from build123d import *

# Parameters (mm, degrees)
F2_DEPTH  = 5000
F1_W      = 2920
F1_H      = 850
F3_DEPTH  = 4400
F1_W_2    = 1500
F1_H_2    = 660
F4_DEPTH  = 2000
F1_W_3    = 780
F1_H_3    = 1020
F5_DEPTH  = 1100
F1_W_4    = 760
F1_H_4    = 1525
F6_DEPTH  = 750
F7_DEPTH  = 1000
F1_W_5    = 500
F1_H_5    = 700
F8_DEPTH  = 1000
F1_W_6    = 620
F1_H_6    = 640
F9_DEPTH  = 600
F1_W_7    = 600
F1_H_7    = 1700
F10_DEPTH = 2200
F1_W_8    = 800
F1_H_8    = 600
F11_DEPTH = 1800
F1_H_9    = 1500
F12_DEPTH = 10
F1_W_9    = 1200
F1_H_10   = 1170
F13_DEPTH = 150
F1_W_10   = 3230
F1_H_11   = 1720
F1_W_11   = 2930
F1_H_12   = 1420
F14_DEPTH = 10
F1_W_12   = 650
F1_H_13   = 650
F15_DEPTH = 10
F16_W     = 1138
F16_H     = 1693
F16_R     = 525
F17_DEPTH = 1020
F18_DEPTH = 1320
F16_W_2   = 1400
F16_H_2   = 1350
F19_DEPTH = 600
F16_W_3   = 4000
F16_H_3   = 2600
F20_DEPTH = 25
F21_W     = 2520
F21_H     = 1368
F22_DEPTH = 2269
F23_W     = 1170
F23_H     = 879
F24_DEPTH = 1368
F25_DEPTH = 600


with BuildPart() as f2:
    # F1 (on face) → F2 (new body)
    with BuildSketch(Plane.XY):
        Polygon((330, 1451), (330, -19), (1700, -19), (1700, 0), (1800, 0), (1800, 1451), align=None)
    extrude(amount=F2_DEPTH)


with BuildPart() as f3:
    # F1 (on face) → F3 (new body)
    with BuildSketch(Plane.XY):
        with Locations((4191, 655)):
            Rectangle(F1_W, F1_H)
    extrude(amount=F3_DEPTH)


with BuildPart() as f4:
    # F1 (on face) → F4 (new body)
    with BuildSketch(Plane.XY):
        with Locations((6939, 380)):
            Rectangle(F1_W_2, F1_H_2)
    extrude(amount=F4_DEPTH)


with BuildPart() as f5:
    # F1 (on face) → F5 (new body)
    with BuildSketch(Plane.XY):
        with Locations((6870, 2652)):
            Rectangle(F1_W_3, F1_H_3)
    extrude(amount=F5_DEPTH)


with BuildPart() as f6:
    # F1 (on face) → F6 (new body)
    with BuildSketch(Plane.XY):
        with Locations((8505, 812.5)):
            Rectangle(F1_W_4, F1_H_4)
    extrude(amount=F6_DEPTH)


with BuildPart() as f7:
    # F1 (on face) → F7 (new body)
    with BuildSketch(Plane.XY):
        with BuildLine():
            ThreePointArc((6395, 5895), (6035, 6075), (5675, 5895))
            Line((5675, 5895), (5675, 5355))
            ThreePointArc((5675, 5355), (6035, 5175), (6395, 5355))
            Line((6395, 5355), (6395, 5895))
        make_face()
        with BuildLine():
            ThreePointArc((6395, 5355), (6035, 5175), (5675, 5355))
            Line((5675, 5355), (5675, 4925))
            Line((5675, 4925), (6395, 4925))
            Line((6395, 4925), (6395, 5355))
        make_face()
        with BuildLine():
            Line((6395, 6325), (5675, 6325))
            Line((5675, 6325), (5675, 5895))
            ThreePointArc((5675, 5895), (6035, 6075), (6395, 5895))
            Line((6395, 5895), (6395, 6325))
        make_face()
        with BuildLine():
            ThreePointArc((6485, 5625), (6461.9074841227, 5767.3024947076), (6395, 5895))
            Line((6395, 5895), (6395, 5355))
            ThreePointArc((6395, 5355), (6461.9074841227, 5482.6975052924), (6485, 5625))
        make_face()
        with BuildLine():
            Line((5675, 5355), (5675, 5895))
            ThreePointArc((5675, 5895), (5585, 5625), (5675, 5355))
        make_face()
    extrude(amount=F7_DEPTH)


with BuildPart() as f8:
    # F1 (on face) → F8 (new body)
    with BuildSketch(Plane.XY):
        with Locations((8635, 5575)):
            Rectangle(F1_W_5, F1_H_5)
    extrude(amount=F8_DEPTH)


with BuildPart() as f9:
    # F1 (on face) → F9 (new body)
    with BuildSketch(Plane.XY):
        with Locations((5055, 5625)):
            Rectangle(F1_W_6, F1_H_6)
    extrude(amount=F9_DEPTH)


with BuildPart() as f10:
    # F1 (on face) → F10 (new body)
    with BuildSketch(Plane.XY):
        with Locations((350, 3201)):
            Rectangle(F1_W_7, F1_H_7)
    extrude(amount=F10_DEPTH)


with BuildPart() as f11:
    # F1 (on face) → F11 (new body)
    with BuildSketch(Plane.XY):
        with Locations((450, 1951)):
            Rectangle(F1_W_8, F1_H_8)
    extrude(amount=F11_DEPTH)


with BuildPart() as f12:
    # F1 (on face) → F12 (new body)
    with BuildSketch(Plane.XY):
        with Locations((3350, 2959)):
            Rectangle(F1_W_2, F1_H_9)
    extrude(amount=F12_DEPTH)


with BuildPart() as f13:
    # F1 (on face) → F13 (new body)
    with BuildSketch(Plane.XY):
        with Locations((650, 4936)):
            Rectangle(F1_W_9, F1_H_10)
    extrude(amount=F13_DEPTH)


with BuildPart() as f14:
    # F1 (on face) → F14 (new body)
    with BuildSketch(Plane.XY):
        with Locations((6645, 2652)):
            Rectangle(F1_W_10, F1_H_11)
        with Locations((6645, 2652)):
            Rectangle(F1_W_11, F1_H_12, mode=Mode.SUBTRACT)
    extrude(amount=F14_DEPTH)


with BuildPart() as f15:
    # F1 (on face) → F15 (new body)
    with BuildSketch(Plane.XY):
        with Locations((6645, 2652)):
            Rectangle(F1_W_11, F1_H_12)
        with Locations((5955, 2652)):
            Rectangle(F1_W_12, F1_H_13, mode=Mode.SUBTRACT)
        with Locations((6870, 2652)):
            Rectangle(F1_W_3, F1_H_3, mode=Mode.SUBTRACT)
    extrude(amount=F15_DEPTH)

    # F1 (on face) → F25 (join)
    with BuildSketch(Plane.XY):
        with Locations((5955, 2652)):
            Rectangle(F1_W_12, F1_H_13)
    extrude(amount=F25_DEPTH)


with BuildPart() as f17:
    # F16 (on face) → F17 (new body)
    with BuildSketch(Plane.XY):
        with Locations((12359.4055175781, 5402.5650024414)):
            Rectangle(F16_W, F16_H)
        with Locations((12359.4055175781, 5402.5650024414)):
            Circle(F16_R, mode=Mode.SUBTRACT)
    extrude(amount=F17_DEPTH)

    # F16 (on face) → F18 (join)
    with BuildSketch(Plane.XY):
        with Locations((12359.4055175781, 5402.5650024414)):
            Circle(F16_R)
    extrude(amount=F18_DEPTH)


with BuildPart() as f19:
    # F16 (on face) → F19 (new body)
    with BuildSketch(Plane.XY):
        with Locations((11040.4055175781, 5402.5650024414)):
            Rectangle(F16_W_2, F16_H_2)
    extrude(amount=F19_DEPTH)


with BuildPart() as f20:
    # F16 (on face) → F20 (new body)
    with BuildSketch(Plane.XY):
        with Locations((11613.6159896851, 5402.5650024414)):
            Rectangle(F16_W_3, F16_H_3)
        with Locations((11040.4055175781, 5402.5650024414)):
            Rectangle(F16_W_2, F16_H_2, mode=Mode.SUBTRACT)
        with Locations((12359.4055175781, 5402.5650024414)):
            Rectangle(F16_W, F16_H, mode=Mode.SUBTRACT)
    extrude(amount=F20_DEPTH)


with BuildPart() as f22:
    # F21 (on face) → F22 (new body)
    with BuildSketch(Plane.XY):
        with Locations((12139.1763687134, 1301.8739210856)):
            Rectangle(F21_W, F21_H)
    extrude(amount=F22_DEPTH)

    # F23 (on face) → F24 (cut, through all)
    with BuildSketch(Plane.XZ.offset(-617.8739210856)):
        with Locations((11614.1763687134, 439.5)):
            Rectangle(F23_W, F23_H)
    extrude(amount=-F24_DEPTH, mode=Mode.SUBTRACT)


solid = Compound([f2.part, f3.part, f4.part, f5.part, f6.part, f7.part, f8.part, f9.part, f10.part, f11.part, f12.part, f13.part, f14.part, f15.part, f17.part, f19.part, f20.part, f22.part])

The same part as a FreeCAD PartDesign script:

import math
import FreeCAD as App
import Part
import Sketcher

doc = App.newDocument("Part")
body = doc.addObject("PartDesign::Body", "Body")

# Sketch on XY plane
sketch1 = body.newObject("Sketcher::SketchObject", "Sketch")
sketch1.AttachmentSupport = (doc.getObject("XY_Plane"), [""])
sketch1.MapMode = "FlatFace"
sketch1.addGeometry([
    Part.LineSegment(App.Vector(330, 1451, 0), App.Vector(330, -19, 0)),  # 0
    Part.LineSegment(App.Vector(330, -19, 0), App.Vector(1700, -19, 0)),  # 1
    Part.LineSegment(App.Vector(1700, -19, 0), App.Vector(1700, 0, 0)),  # 2
    Part.LineSegment(App.Vector(1700, 0, 0), App.Vector(1800, 0, 0)),  # 3
    Part.LineSegment(App.Vector(1800, 0, 0), App.Vector(1800, 1451, 0)),  # 4
    Part.LineSegment(App.Vector(1800, 1451, 0), App.Vector(330, 1451, 0)),  # 5
], False)
sketch1.addConstraint([
    Sketcher.Constraint("Coincident", 0, 2, 1, 1),
    Sketcher.Constraint("Coincident", 1, 2, 2, 1),
    Sketcher.Constraint("Coincident", 2, 2, 3, 1),
    Sketcher.Constraint("Coincident", 3, 2, 4, 1),
    Sketcher.Constraint("Coincident", 4, 2, 5, 1),
    Sketcher.Constraint("Coincident", 5, 2, 0, 1),
    Sketcher.Constraint("Vertical", 0),
    Sketcher.Constraint("Horizontal", 1),
    Sketcher.Constraint("Vertical", 2),
    Sketcher.Constraint("Horizontal", 3),
    Sketcher.Constraint("Vertical", 4),
    Sketcher.Constraint("Horizontal", 5),
    Sketcher.Constraint("PointOnObject", 2, 2, -1),
    Sketcher.Constraint("Equal", 5, 0),
    Sketcher.Constraint("DistanceX", 1, 1, 1, 2, 1370.0),
    Sketcher.Constraint("DistanceX", 3, 1, 3, 2, 100.0),
    Sketcher.Constraint("DistanceY", 2, 1, 2, 2, 19.0),
    Sketcher.Constraint("DistanceX", -1, 1, 0, 2, 330.0),
])
pad1 = body.newObject("PartDesign::Pad", "Pad")
pad1.Profile = sketch1
pad1.Length = 5000
body2 = doc.addObject("PartDesign::Body", "Body001")

# Sketch on XY plane
sketch2 = body2.newObject("Sketcher::SketchObject", "Sketch001")
sketch2.AttachmentSupport = (doc.getObject("XY_Plane001"), [""])
sketch2.MapMode = "FlatFace"
sketch2.addGeometry([
    Part.LineSegment(App.Vector(2731, 1080, 0), App.Vector(2731, 230, 0)),
    Part.LineSegment(App.Vector(2731, 230, 0), App.Vector(5651, 230, 0)),
    Part.LineSegment(App.Vector(5651, 230, 0), App.Vector(5651, 1080, 0)),
    Part.LineSegment(App.Vector(5651, 1080, 0), App.Vector(2731, 1080, 0)),
], False)
sketch2.addConstraint([
    Sketcher.Constraint("Coincident", 0, 2, 1, 1),
    Sketcher.Constraint("Coincident", 1, 2, 2, 1),
    Sketcher.Constraint("Coincident", 2, 2, 3, 1),
    Sketcher.Constraint("Coincident", 3, 2, 0, 1),
    Sketcher.Constraint("Vertical", 0),
    Sketcher.Constraint("Horizontal", 1),
    Sketcher.Constraint("Vertical", 2),
    Sketcher.Constraint("Horizontal", 3),
    Sketcher.Constraint("DistanceX", 1, 1, 1, 2, 2920.0),
    Sketcher.Constraint("DistanceY", 0, 2, 0, 1, 850.0),
    Sketcher.Constraint("DistanceX", -1, 1, 0, 2, 2731.0),
    Sketcher.Constraint("DistanceY", -1, 1, 0, 2, 230.0),
])
pad2 = body2.newObject("PartDesign::Pad", "Pad001")
pad2.Profile = sketch2
pad2.Length = 4400
body3 = doc.addObject("PartDesign::Body", "Body002")

# Sketch on XY plane
sketch3 = body3.newObject("Sketcher::SketchObject", "Sketch002")
sketch3.AttachmentSupport = (doc.getObject("XY_Plane002"), [""])
sketch3.MapMode = "FlatFace"
sketch3.addGeometry([
    Part.LineSegment(App.Vector(6189, 710, 0), App.Vector(6189, 50, 0)),
    Part.LineSegment(App.Vector(6189, 50, 0), App.Vector(7689, 50, 0)),
    Part.LineSegment(App.Vector(7689, 50, 0), App.Vector(7689, 710, 0)),
    Part.LineSegment(App.Vector(7689, 710, 0), App.Vector(6189, 710, 0)),
], False)
sketch3.addConstraint([
    Sketcher.Constraint("Coincident", 0, 2, 1, 1),
    Sketcher.Constraint("Coincident", 1, 2, 2, 1),
    Sketcher.Constraint("Coincident", 2, 2, 3, 1),
    Sketcher.Constraint("Coincident", 3, 2, 0, 1),
    Sketcher.Constraint("Vertical", 0),
    Sketcher.Constraint("Horizontal", 1),
    Sketcher.Constraint("Vertical", 2),
    Sketcher.Constraint("Horizontal", 3),
    Sketcher.Constraint("DistanceX", 1, 1, 1, 2, 1500.0),
    Sketcher.Constraint("DistanceY", 0, 2, 0, 1, 660.0),
    Sketcher.Constraint("DistanceX", -1, 1, 0, 2, 6189.0),
    Sketcher.Constraint("DistanceY", -1, 1, 0, 2, 50.0),
])
pad3 = body3.newObject("PartDesign::Pad", "Pad002")
pad3.Profile = sketch3
pad3.Length = 2000
body4 = doc.addObject("PartDesign::Body", "Body003")

# Sketch on XY plane
sketch4 = body4.newObject("Sketcher::SketchObject", "Sketch003")
sketch4.AttachmentSupport = (doc.getObject("XY_Plane003"), [""])
sketch4.MapMode = "FlatFace"
sketch4.addGeometry([
    Part.LineSegment(App.Vector(6480, 3162, 0), App.Vector(6480, 2142, 0)),
    Part.LineSegment(App.Vector(6480, 2142, 0), App.Vector(7260, 2142, 0)),
    Part.LineSegment(App.Vector(7260, 2142, 0), App.Vector(7260, 3162, 0)),
    Part.LineSegment(App.Vector(7260, 3162, 0), App.Vector(6480, 3162, 0)),
], False)
sketch4.addConstraint([
    Sketcher.Constraint("Coincident", 0, 2, 1, 1),
    Sketcher.Constraint("Coincident", 1, 2, 2, 1),
    Sketcher.Constraint("Coincident", 2, 2, 3, 1),
    Sketcher.Constraint("Coincident", 3, 2, 0, 1),
    Sketcher.Constraint("Vertical", 0),
    Sketcher.Constraint("Horizontal", 1),
    Sketcher.Constraint("Vertical", 2),
    Sketcher.Constraint("Horizontal", 3),
    Sketcher.Constraint("DistanceX", 1, 1, 1, 2, 780.0),
    Sketcher.Constraint("DistanceY", 0, 2, 0, 1, 1020.0),
    Sketcher.Constraint("DistanceX", -1, 1, 0, 2, 6480.0),
    Sketcher.Constraint("DistanceY", -1, 1, 0, 2, 2142.0),
])
pad4 = body4.newObject("PartDesign::Pad", "Pad003")
pad4.Profile = sketch4
pad4.Length = 1100
body5 = doc.addObject("PartDesign::Body", "Body004")

# Sketch on XY plane
sketch5 = body5.newObject("Sketcher::SketchObject", "Sketch004")
sketch5.AttachmentSupport = (doc.getObject("XY_Plane004"), [""])
sketch5.MapMode = "FlatFace"
sketch5.addGeometry([
    Part.LineSegment(App.Vector(8125, 1575, 0), App.Vector(8125, 50, 0)),
    Part.LineSegment(App.Vector(8125, 50, 0), App.Vector(8885, 50, 0)),
    Part.LineSegment(App.Vector(8885, 50, 0), App.Vector(8885, 1575, 0)),
    Part.LineSegment(App.Vector(8885, 1575, 0), App.Vector(8125, 1575, 0)),
], False)
sketch5.addConstraint([
    Sketcher.Constraint("Coincident", 0, 2, 1, 1),
    Sketcher.Constraint("Coincident", 1, 2, 2, 1),
    Sketcher.Constraint("Coincident", 2, 2, 3, 1),
    Sketcher.Constraint("Coincident", 3, 2, 0, 1),
    Sketcher.Constraint("Vertical", 0),
    Sketcher.Constraint("Horizontal", 1),
    Sketcher.Constraint("Vertical", 2),
    Sketcher.Constraint("Horizontal", 3),
    Sketcher.Constraint("DistanceX", 1, 1, 1, 2, 760.0),
    Sketcher.Constraint("DistanceY", 0, 2, 0, 1, 1525.0),
    Sketcher.Constraint("DistanceX", -1, 1, 0, 2, 8125.0),
    Sketcher.Constraint("DistanceY", -1, 1, 0, 2, 50.0),
])
pad5 = body5.newObject("PartDesign::Pad", "Pad004")
pad5.Profile = sketch5
pad5.Length = 750
body6 = doc.addObject("PartDesign::Body", "Body005")

# Sketch on XY plane
sketch6 = body6.newObject("Sketcher::SketchObject", "Sketch005")
sketch6.AttachmentSupport = (doc.getObject("XY_Plane005"), [""])
sketch6.MapMode = "FlatFace"
sketch6.addGeometry([
    Part.LineSegment(App.Vector(5675, 4925, 0), App.Vector(6395, 4925, 0)),  # 0
    Part.LineSegment(App.Vector(6395, 4925, 0), App.Vector(6395, 5355, 0)),  # 1
    Part.ArcOfCircle(Part.Circle(App.Vector(6035, 5625, 0), App.Vector(0, 0, 1), 450), math.radians(-36.869898), math.radians(36.869898)),  # 2
    Part.LineSegment(App.Vector(6395, 5895, 0), App.Vector(6395, 6325, 0)),  # 3
    Part.LineSegment(App.Vector(6395, 6325, 0), App.Vector(5675, 6325, 0)),  # 4
    Part.LineSegment(App.Vector(5675, 6325, 0), App.Vector(5675, 5895, 0)),  # 5
    Part.ArcOfCircle(Part.Circle(App.Vector(6035, 5625, 0), App.Vector(0, 0, 1), 450), math.radians(143.130102), math.radians(216.869898)),  # 6
    Part.LineSegment(App.Vector(5675, 5355, 0), App.Vector(5675, 4925, 0)),  # 7
], False)
sketch6.addConstraint([
    Sketcher.Constraint("Coincident", 0, 2, 1, 1),
    Sketcher.Constraint("Coincident", 1, 2, 2, 1),
    Sketcher.Constraint("Coincident", 2, 2, 3, 1),
    Sketcher.Constraint("Coincident", 3, 2, 4, 1),
    Sketcher.Constraint("Coincident", 4, 2, 5, 1),
    Sketcher.Constraint("Coincident", 5, 2, 6, 1),
    Sketcher.Constraint("Coincident", 6, 2, 7, 1),
    Sketcher.Constraint("Coincident", 7, 2, 0, 1),
    Sketcher.Constraint("Horizontal", 0),
    Sketcher.Constraint("Vertical", 1),
    Sketcher.Constraint("Vertical", 3),
    Sketcher.Constraint("Horizontal", 4),
    Sketcher.Constraint("Vertical", 5),
    Sketcher.Constraint("Vertical", 7),
    Sketcher.Constraint("Coincident", 6, 3, 2, 3),
    Sketcher.Constraint("Equal", 2, 6),
    Sketcher.Constraint("Horizontal", 2, 2, 5, 2),
    Sketcher.Constraint("Horizontal", 1, 2, 6, 2),
    Sketcher.Constraint("Equal", 0, 4),
    Sketcher.Constraint("Equal", 1, 3),
    Sketcher.Constraint("Radius", 2, 450.0),
    Sketcher.Constraint("DistanceX", 0, 1, 0, 2, 720.0),
    Sketcher.Constraint("DistanceY", 1, 1, 1, 2, 430.0),
    Sketcher.Constraint("DistanceX", -1, 1, 2, 3, 6035.0),
    Sketcher.Constraint("DistanceY", -1, 1, 2, 3, 5625.0),
])
pad6 = body6.newObject("PartDesign::Pad", "Pad005")
pad6.Profile = sketch6
pad6.Length = 1000
body7 = doc.addObject("PartDesign::Body", "Body006")

# Sketch on XY plane
sketch7 = body7.newObject("Sketcher::SketchObject", "Sketch006")
sketch7.AttachmentSupport = (doc.getObject("XY_Plane006"), [""])
sketch7.MapMode = "FlatFace"
sketch7.addGeometry([
    Part.LineSegment(App.Vector(8385, 5925, 0), App.Vector(8385, 5225, 0)),
    Part.LineSegment(App.Vector(8385, 5225, 0), App.Vector(8885, 5225, 0)),
    Part.LineSegment(App.Vector(8885, 5225, 0), App.Vector(8885, 5925, 0)),
    Part.LineSegment(App.Vector(8885, 5925, 0), App.Vector(8385, 5925, 0)),
], False)
sketch7.addConstraint([
    Sketcher.Constraint("Coincident", 0, 2, 1, 1),
    Sketcher.Constraint("Coincident", 1, 2, 2, 1),
    Sketcher.Constraint("Coincident", 2, 2, 3, 1),
    Sketcher.Constraint("Coincident", 3, 2, 0, 1),
    Sketcher.Constraint("Vertical", 0),
    Sketcher.Constraint("Horizontal", 1),
    Sketcher.Constraint("Vertical", 2),
    Sketcher.Constraint("Horizontal", 3),
    Sketcher.Constraint("DistanceX", 1, 1, 1, 2, 500.0),
    Sketcher.Constraint("DistanceY", 0, 2, 0, 1, 700.0),
    Sketcher.Constraint("DistanceX", -1, 1, 0, 2, 8385.0),
    Sketcher.Constraint("DistanceY", -1, 1, 0, 2, 5225.0),
])
pad7 = body7.newObject("PartDesign::Pad", "Pad006")
pad7.Profile = sketch7
pad7.Length = 1000
body8 = doc.addObject("PartDesign::Body", "Body007")

# Sketch on XY plane
sketch8 = body8.newObject("Sketcher::SketchObject", "Sketch007")
sketch8.AttachmentSupport = (doc.getObject("XY_Plane007"), [""])
sketch8.MapMode = "FlatFace"
sketch8.addGeometry([
    Part.LineSegment(App.Vector(4745, 5945, 0), App.Vector(4745, 5305, 0)),
    Part.LineSegment(App.Vector(4745, 5305, 0), App.Vector(5365, 5305, 0)),
    Part.LineSegment(App.Vector(5365, 5305, 0), App.Vector(5365, 5945, 0)),
    Part.LineSegment(App.Vector(5365, 5945, 0), App.Vector(4745, 5945, 0)),
], False)
sketch8.addConstraint([
    Sketcher.Constraint("Coincident", 0, 2, 1, 1),
    Sketcher.Constraint("Coincident", 1, 2, 2, 1),
    Sketcher.Constraint("Coincident", 2, 2, 3, 1),
    Sketcher.Constraint("Coincident", 3, 2, 0, 1),
    Sketcher.Constraint("Vertical", 0),
    Sketcher.Constraint("Horizontal", 1),
    Sketcher.Constraint("Vertical", 2),
    Sketcher.Constraint("Horizontal", 3),
    Sketcher.Constraint("DistanceX", 1, 1, 1, 2, 620.0),
    Sketcher.Constraint("DistanceY", 0, 2, 0, 1, 640.0),
    Sketcher.Constraint("DistanceX", -1, 1, 0, 2, 4745.0),
    Sketcher.Constraint("DistanceY", -1, 1, 0, 2, 5305.0),
])
pad8 = body8.newObject("PartDesign::Pad", "Pad007")
pad8.Profile = sketch8
pad8.Length = 600
body9 = doc.addObject("PartDesign::Body", "Body008")

# Sketch on XY plane
sketch9 = body9.newObject("Sketcher::SketchObject", "Sketch008")
sketch9.AttachmentSupport = (doc.getObject("XY_Plane008"), [""])
sketch9.MapMode = "FlatFace"
sketch9.addGeometry([
    Part.LineSegment(App.Vector(50, 4051, 0), App.Vector(50, 2351, 0)),
    Part.LineSegment(App.Vector(50, 2351, 0), App.Vector(650, 2351, 0)),
    Part.LineSegment(App.Vector(650, 2351, 0), App.Vector(650, 4051, 0)),
    Part.LineSegment(App.Vector(650, 4051, 0), App.Vector(50, 4051, 0)),
], False)
sketch9.addConstraint([
    Sketcher.Constraint("Coincident", 0, 2, 1, 1),
    Sketcher.Constraint("Coincident", 1, 2, 2, 1),
    Sketcher.Constraint("Coincident", 2, 2, 3, 1),
    Sketcher.Constraint("Coincident", 3, 2, 0, 1),
    Sketcher.Constraint("Vertical", 0),
    Sketcher.Constraint("Horizontal", 1),
    Sketcher.Constraint("Vertical", 2),
    Sketcher.Constraint("Horizontal", 3),
    Sketcher.Constraint("DistanceX", 1, 1, 1, 2, 600.0),
    Sketcher.Constraint("DistanceY", 0, 2, 0, 1, 1700.0),
    Sketcher.Constraint("DistanceX", -1, 1, 0, 2, 50.0),
    Sketcher.Constraint("DistanceY", -1, 1, 0, 2, 2351.0),
])
pad9 = body9.newObject("PartDesign::Pad", "Pad008")
pad9.Profile = sketch9
pad9.Length = 2200
body10 = doc.addObject("PartDesign::Body", "Body009")

# Sketch on XY plane
sketch10 = body10.newObject("Sketcher::SketchObject", "Sketch009")
sketch10.AttachmentSupport = (doc.getObject("XY_Plane009"), [""])
sketch10.MapMode = "FlatFace"
sketch10.addGeometry([
    Part.LineSegment(App.Vector(50, 2251, 0), App.Vector(50, 1651, 0)),
    Part.LineSegment(App.Vector(50, 1651, 0), App.Vector(850, 1651, 0)),
    Part.LineSegment(App.Vector(850, 1651, 0), App.Vector(850, 2251, 0)),
    Part.LineSegment(App.Vector(850, 2251, 0), App.Vector(50, 2251, 0)),
], False)
sketch10.addConstraint([
    Sketcher.Constraint("Coincident", 0, 2, 1, 1),
    Sketcher.Constraint("Coincident", 1, 2, 2, 1),
    Sketcher.Constraint("Coincident", 2, 2, 3, 1),
    Sketcher.Constraint("Coincident", 3, 2, 0, 1),
    Sketcher.Constraint("Vertical", 0),
    Sketcher.Constraint("Horizontal", 1),
    Sketcher.Constraint("Vertical", 2),
    Sketcher.Constraint("Horizontal", 3),
    Sketcher.Constraint("DistanceX", 1, 1, 1, 2, 800.0),
    Sketcher.Constraint("DistanceY", 0, 2, 0, 1, 600.0),
    Sketcher.Constraint("DistanceX", -1, 1, 0, 2, 50.0),
    Sketcher.Constraint("DistanceY", -1, 1, 0, 2, 1651.0),
])
pad10 = body10.newObject("PartDesign::Pad", "Pad009")
pad10.Profile = sketch10
pad10.Length = 1800
body11 = doc.addObject("PartDesign::Body", "Body010")

# Sketch on XY plane
sketch11 = body11.newObject("Sketcher::SketchObject", "Sketch010")
sketch11.AttachmentSupport = (doc.getObject("XY_Plane010"), [""])
sketch11.MapMode = "FlatFace"
sketch11.addGeometry([
    Part.LineSegment(App.Vector(2600, 3709, 0), App.Vector(2600, 2209, 0)),
    Part.LineSegment(App.Vector(2600, 2209, 0), App.Vector(4100, 2209, 0)),
    Part.LineSegment(App.Vector(4100, 2209, 0), App.Vector(4100, 3709, 0)),
    Part.LineSegment(App.Vector(4100, 3709, 0), App.Vector(2600, 3709, 0)),
], False)
sketch11.addConstraint([
    Sketcher.Constraint("Coincident", 0, 2, 1, 1),
    Sketcher.Constraint("Coincident", 1, 2, 2, 1),
    Sketcher.Constraint("Coincident", 2, 2, 3, 1),
    Sketcher.Constraint("Coincident", 3, 2, 0, 1),
    Sketcher.Constraint("Vertical", 0),
    Sketcher.Constraint("Horizontal", 1),
    Sketcher.Constraint("Vertical", 2),
    Sketcher.Constraint("Horizontal", 3),
    Sketcher.Constraint("Equal", 3, 0),
    Sketcher.Constraint("DistanceX", 1, 1, 1, 2, 1500.0),
    Sketcher.Constraint("DistanceX", -1, 1, 0, 2, 2600.0),
    Sketcher.Constraint("DistanceY", -1, 1, 0, 2, 2209.0),
])
pad11 = body11.newObject("PartDesign::Pad", "Pad010")
pad11.Profile = sketch11
pad11.Length = 10
body12 = doc.addObject("PartDesign::Body", "Body011")

# Sketch on XY plane
sketch12 = body12.newObject("Sketcher::SketchObject", "Sketch011")
sketch12.AttachmentSupport = (doc.getObject("XY_Plane011"), [""])
sketch12.MapMode = "FlatFace"
sketch12.addGeometry([
    Part.LineSegment(App.Vector(50, 5521, 0), App.Vector(50, 4351, 0)),
    Part.LineSegment(App.Vector(50, 4351, 0), App.Vector(1250, 4351, 0)),
    Part.LineSegment(App.Vector(1250, 4351, 0), App.Vector(1250, 5521, 0)),
    Part.LineSegment(App.Vector(1250, 5521, 0), App.Vector(50, 5521, 0)),
], False)
sketch12.addConstraint([
    Sketcher.Constraint("Coincident", 0, 2, 1, 1),
    Sketcher.Constraint("Coincident", 1, 2, 2, 1),
    Sketcher.Constraint("Coincident", 2, 2, 3, 1),
    Sketcher.Constraint("Coincident", 3, 2, 0, 1),
    Sketcher.Constraint("Vertical", 0),
    Sketcher.Constraint("Horizontal", 1),
    Sketcher.Constraint("Vertical", 2),
    Sketcher.Constraint("Horizontal", 3),
    Sketcher.Constraint("DistanceX", 1, 1, 1, 2, 1200.0),
    Sketcher.Constraint("DistanceY", 0, 2, 0, 1, 1170.0),
    Sketcher.Constraint("DistanceX", -1, 1, 0, 2, 50.0),
    Sketcher.Constraint("DistanceY", -1, 1, 0, 2, 4351.0),
])
pad12 = body12.newObject("PartDesign::Pad", "Pad011")
pad12.Profile = sketch12
pad12.Length = 150
body13 = doc.addObject("PartDesign::Body", "Body012")

# Sketch on XY plane
sketch13 = body13.newObject("Sketcher::SketchObject", "Sketch012")
sketch13.AttachmentSupport = (doc.getObject("XY_Plane012"), [""])
sketch13.MapMode = "FlatFace"
sketch13.addGeometry([
    Part.LineSegment(App.Vector(5030, 3512, 0), App.Vector(5030, 1792, 0)),  # 0
    Part.LineSegment(App.Vector(5030, 1792, 0), App.Vector(8260, 1792, 0)),  # 1
    Part.LineSegment(App.Vector(8260, 1792, 0), App.Vector(8260, 3512, 0)),  # 2
    Part.LineSegment(App.Vector(8260, 3512, 0), App.Vector(5030, 3512, 0)),  # 3
    Part.LineSegment(App.Vector(8110, 1942, 0), App.Vector(5180, 1942, 0)),  # 4
    Part.LineSegment(App.Vector(5180, 1942, 0), App.Vector(5180, 3362, 0)),  # 5
    Part.LineSegment(App.Vector(5180, 3362, 0), App.Vector(8110, 3362, 0)),  # 6
    Part.LineSegment(App.Vector(8110, 3362, 0), App.Vector(8110, 1942, 0)),  # 7
], False)
sketch13.addConstraint([
    Sketcher.Constraint("Coincident", 0, 2, 1, 1),
    Sketcher.Constraint("Coincident", 1, 2, 2, 1),
    Sketcher.Constraint("Coincident", 2, 2, 3, 1),
    Sketcher.Constraint("Coincident", 3, 2, 0, 1),
    Sketcher.Constraint("Coincident", 4, 2, 5, 1),
    Sketcher.Constraint("Coincident", 5, 2, 6, 1),
    Sketcher.Constraint("Coincident", 6, 2, 7, 1),
    Sketcher.Constraint("Coincident", 7, 2, 4, 1),
    Sketcher.Constraint("Vertical", 0),
    Sketcher.Constraint("Horizontal", 1),
    Sketcher.Constraint("Vertical", 2),
    Sketcher.Constraint("Horizontal", 3),
    Sketcher.Constraint("Horizontal", 4),
    Sketcher.Constraint("Vertical", 5),
    Sketcher.Constraint("Horizontal", 6),
    Sketcher.Constraint("Vertical", 7),
    Sketcher.Constraint("DistanceX", 1, 1, 1, 2, 3230.0),
    Sketcher.Constraint("DistanceX", 4, 2, 4, 1, 2930.0),
    Sketcher.Constraint("DistanceY", 0, 2, 0, 1, 1720.0),
    Sketcher.Constraint("DistanceY", 5, 1, 5, 2, 1420.0),
    Sketcher.Constraint("DistanceX", -1, 1, 0, 2, 5030.0),
    Sketcher.Constraint("DistanceY", -1, 1, 0, 2, 1792.0),
    Sketcher.Constraint("DistanceX", -1, 1, 4, 2, 5180.0),
    Sketcher.Constraint("DistanceY", -1, 1, 4, 2, 1942.0),
])
pad13 = body13.newObject("PartDesign::Pad", "Pad012")
pad13.Profile = sketch13
pad13.Length = 10
body14 = doc.addObject("PartDesign::Body", "Body013")

# Sketch on XY plane
sketch14 = body14.newObject("Sketcher::SketchObject", "Sketch013")
sketch14.AttachmentSupport = (doc.getObject("XY_Plane013"), [""])
sketch14.MapMode = "FlatFace"
sketch14.addGeometry([
    Part.LineSegment(App.Vector(5180, 3362, 0), App.Vector(5180, 1942, 0)),  # 0
    Part.LineSegment(App.Vector(5180, 1942, 0), App.Vector(8110, 1942, 0)),  # 1
    Part.LineSegment(App.Vector(8110, 1942, 0), App.Vector(8110, 3362, 0)),  # 2
    Part.LineSegment(App.Vector(8110, 3362, 0), App.Vector(5180, 3362, 0)),  # 3
    Part.LineSegment(App.Vector(6280, 2327, 0), App.Vector(5630, 2327, 0)),  # 4
    Part.LineSegment(App.Vector(5630, 2327, 0), App.Vector(5630, 2977, 0)),  # 5
    Part.LineSegment(App.Vector(5630, 2977, 0), App.Vector(6280, 2977, 0)),  # 6
    Part.LineSegment(App.Vector(6280, 2977, 0), App.Vector(6280, 2327, 0)),  # 7
    Part.LineSegment(App.Vector(7260, 2142, 0), App.Vector(6480, 2142, 0)),  # 8
    Part.LineSegment(App.Vector(6480, 2142, 0), App.Vector(6480, 3162, 0)),  # 9
    Part.LineSegment(App.Vector(6480, 3162, 0), App.Vector(7260, 3162, 0)),  # 10
    Part.LineSegment(App.Vector(7260, 3162, 0), App.Vector(7260, 2142, 0)),  # 11
], False)
sketch14.addConstraint([
    Sketcher.Constraint("Coincident", 0, 2, 1, 1),
    Sketcher.Constraint("Coincident", 1, 2, 2, 1),
    Sketcher.Constraint("Coincident", 2, 2, 3, 1),
    Sketcher.Constraint("Coincident", 3, 2, 0, 1),
    Sketcher.Constraint("Coincident", 4, 2, 5, 1),
    Sketcher.Constraint("Coincident", 5, 2, 6, 1),
    Sketcher.Constraint("Coincident", 6, 2, 7, 1),
    Sketcher.Constraint("Coincident", 7, 2, 4, 1),
    Sketcher.Constraint("Coincident", 8, 2, 9, 1),
    Sketcher.Constraint("Coincident", 9, 2, 10, 1),
    Sketcher.Constraint("Coincident", 10, 2, 11, 1),
    Sketcher.Constraint("Coincident", 11, 2, 8, 1),
    Sketcher.Constraint("Vertical", 0),
    Sketcher.Constraint("Horizontal", 1),
    Sketcher.Constraint("Vertical", 2),
    Sketcher.Constraint("Horizontal", 3),
    Sketcher.Constraint("Horizontal", 4),
    Sketcher.Constraint("Vertical", 5),
    Sketcher.Constraint("Horizontal", 6),
    Sketcher.Constraint("Vertical", 7),
    Sketcher.Constraint("Horizontal", 8),
    Sketcher.Constraint("Vertical", 9),
    Sketcher.Constraint("Horizontal", 10),
    Sketcher.Constraint("Vertical", 11),
    Sketcher.Constraint("Equal", 6, 5),
    Sketcher.Constraint("DistanceX", 1, 1, 1, 2, 2930.0),
    Sketcher.Constraint("DistanceX", 4, 2, 4, 1, 650.0),
    Sketcher.Constraint("DistanceX", 8, 2, 8, 1, 780.0),
    Sketcher.Constraint("DistanceY", 0, 2, 0, 1, 1420.0),
    Sketcher.Constraint("DistanceY", 9, 1, 9, 2, 1020.0),
    Sketcher.Constraint("DistanceX", -1, 1, 0, 2, 5180.0),
    Sketcher.Constraint("DistanceY", -1, 1, 0, 2, 1942.0),
    Sketcher.Constraint("DistanceX", -1, 1, 4, 2, 5630.0),
    Sketcher.Constraint("DistanceY", -1, 1, 4, 2, 2327.0),
    Sketcher.Constraint("DistanceX", -1, 1, 8, 2, 6480.0),
    Sketcher.Constraint("DistanceY", -1, 1, 8, 2, 2142.0),
])
pad14 = body14.newObject("PartDesign::Pad", "Pad013")
pad14.Profile = sketch14
pad14.Length = 10

# Sketch on XY plane
sketch15 = body14.newObject("Sketcher::SketchObject", "Sketch014")
sketch15.AttachmentSupport = (doc.getObject("XY_Plane013"), [""])
sketch15.MapMode = "FlatFace"
sketch15.addGeometry([
    Part.LineSegment(App.Vector(5630, 2977, 0), App.Vector(5630, 2327, 0)),
    Part.LineSegment(App.Vector(5630, 2327, 0), App.Vector(6280, 2327, 0)),
    Part.LineSegment(App.Vector(6280, 2327, 0), App.Vector(6280, 2977, 0)),
    Part.LineSegment(App.Vector(6280, 2977, 0), App.Vector(5630, 2977, 0)),
], False)
sketch15.addConstraint([
    Sketcher.Constraint("Coincident", 0, 2, 1, 1),
    Sketcher.Constraint("Coincident", 1, 2, 2, 1),
    Sketcher.Constraint("Coincident", 2, 2, 3, 1),
    Sketcher.Constraint("Coincident", 3, 2, 0, 1),
    Sketcher.Constraint("Vertical", 0),
    Sketcher.Constraint("Horizontal", 1),
    Sketcher.Constraint("Vertical", 2),
    Sketcher.Constraint("Horizontal", 3),
    Sketcher.Constraint("Equal", 3, 0),
    Sketcher.Constraint("DistanceX", 1, 1, 1, 2, 650.0),
    Sketcher.Constraint("DistanceX", -1, 1, 0, 2, 5630.0),
    Sketcher.Constraint("DistanceY", -1, 1, 0, 2, 2327.0),
])
pad15 = body14.newObject("PartDesign::Pad", "Pad014")
pad15.Profile = sketch15
pad15.Length = 600
body15 = doc.addObject("PartDesign::Body", "Body014")

# Sketch on XY plane
sketch16 = body15.newObject("Sketcher::SketchObject", "Sketch015")
sketch16.AttachmentSupport = (doc.getObject("XY_Plane014"), [""])
sketch16.MapMode = "FlatFace"
sketch16.addGeometry([
    Part.LineSegment(App.Vector(11790.405518, 6249.065002, 0), App.Vector(11790.405518, 4556.065002, 0)),  # 0
    Part.LineSegment(App.Vector(11790.405518, 4556.065002, 0), App.Vector(12928.405518, 4556.065002, 0)),  # 1
    Part.LineSegment(App.Vector(12928.405518, 4556.065002, 0), App.Vector(12928.405518, 6249.065002, 0)),  # 2
    Part.LineSegment(App.Vector(12928.405518, 6249.065002, 0), App.Vector(11790.405518, 6249.065002, 0)),  # 3
    Part.Circle(App.Vector(12359.405518, 5402.565002, 0), App.Vector(0, 0, 1), 525),  # 4
], False)
sketch16.addConstraint([
    Sketcher.Constraint("Coincident", 0, 2, 1, 1),
    Sketcher.Constraint("Coincident", 1, 2, 2, 1),
    Sketcher.Constraint("Coincident", 2, 2, 3, 1),
    Sketcher.Constraint("Coincident", 3, 2, 0, 1),
    Sketcher.Constraint("Vertical", 0),
    Sketcher.Constraint("Horizontal", 1),
    Sketcher.Constraint("Vertical", 2),
    Sketcher.Constraint("Horizontal", 3),
    Sketcher.Constraint("Diameter", 4, 1050.0),
    Sketcher.Constraint("DistanceX", 1, 1, 1, 2, 1138.0),
    Sketcher.Constraint("DistanceY", 0, 2, 0, 1, 1693.0),
    Sketcher.Constraint("DistanceX", 0, 2, 4, 3, 569.0),
    Sketcher.Constraint("DistanceY", 0, 2, 4, 3, 846.5),
    Sketcher.Constraint("DistanceX", -1, 1, 4, 3, 12359.405518),
    Sketcher.Constraint("DistanceY", -1, 1, 4, 3, 5402.565002),
])
pad16 = body15.newObject("PartDesign::Pad", "Pad015")
pad16.Profile = sketch16
pad16.Length = 1020

# Sketch on XY plane
sketch17 = body15.newObject("Sketcher::SketchObject", "Sketch016")
sketch17.AttachmentSupport = (doc.getObject("XY_Plane014"), [""])
sketch17.MapMode = "FlatFace"
sketch17.addGeometry(Part.Circle(App.Vector(12359.405518, 5402.565002, 0), App.Vector(0, 0, 1), 525), False)
sketch17.addConstraint([
    Sketcher.Constraint("Diameter", 0, 1050.0),
    Sketcher.Constraint("DistanceX", -1, 1, 0, 3, 12359.405518),
    Sketcher.Constraint("DistanceY", -1, 1, 0, 3, 5402.565002),
])
pad17 = body15.newObject("PartDesign::Pad", "Pad016")
pad17.Profile = sketch17
pad17.Length = 1320
body16 = doc.addObject("PartDesign::Body", "Body015")

# Sketch on XY plane
sketch18 = body16.newObject("Sketcher::SketchObject", "Sketch017")
sketch18.AttachmentSupport = (doc.getObject("XY_Plane015"), [""])
sketch18.MapMode = "FlatFace"
sketch18.addGeometry([
    Part.LineSegment(App.Vector(10340.405518, 6077.565002, 0), App.Vector(10340.405518, 4727.565002, 0)),
    Part.LineSegment(App.Vector(10340.405518, 4727.565002, 0), App.Vector(11740.405518, 4727.565002, 0)),
    Part.LineSegment(App.Vector(11740.405518, 4727.565002, 0), App.Vector(11740.405518, 6077.565002, 0)),
    Part.LineSegment(App.Vector(11740.405518, 6077.565002, 0), App.Vector(10340.405518, 6077.565002, 0)),
], False)
sketch18.addConstraint([
    Sketcher.Constraint("Coincident", 0, 2, 1, 1),
    Sketcher.Constraint("Coincident", 1, 2, 2, 1),
    Sketcher.Constraint("Coincident", 2, 2, 3, 1),
    Sketcher.Constraint("Coincident", 3, 2, 0, 1),
    Sketcher.Constraint("Vertical", 0),
    Sketcher.Constraint("Horizontal", 1),
    Sketcher.Constraint("Vertical", 2),
    Sketcher.Constraint("Horizontal", 3),
    Sketcher.Constraint("DistanceX", 1, 1, 1, 2, 1400.0),
    Sketcher.Constraint("DistanceY", 0, 2, 0, 1, 1350.0),
    Sketcher.Constraint("DistanceX", -1, 1, 0, 2, 10340.405518),
    Sketcher.Constraint("DistanceY", -1, 1, 0, 2, 4727.565002),
])
pad18 = body16.newObject("PartDesign::Pad", "Pad017")
pad18.Profile = sketch18
pad18.Length = 600
body17 = doc.addObject("PartDesign::Body", "Body016")

# Sketch on XY plane
sketch19 = body17.newObject("Sketcher::SketchObject", "Sketch018")
sketch19.AttachmentSupport = (doc.getObject("XY_Plane016"), [""])
sketch19.MapMode = "FlatFace"
sketch19.addGeometry([
    Part.LineSegment(App.Vector(9613.61599, 6702.565002, 0), App.Vector(9613.61599, 4102.565002, 0)),  # 0
    Part.LineSegment(App.Vector(9613.61599, 4102.565002, 0), App.Vector(13613.61599, 4102.565002, 0)),  # 1
    Part.LineSegment(App.Vector(13613.61599, 4102.565002, 0), App.Vector(13613.61599, 6702.565002, 0)),  # 2
    Part.LineSegment(App.Vector(13613.61599, 6702.565002, 0), App.Vector(9613.61599, 6702.565002, 0)),  # 3
    Part.LineSegment(App.Vector(11740.405518, 4727.565002, 0), App.Vector(10340.405518, 4727.565002, 0)),  # 4
    Part.LineSegment(App.Vector(10340.405518, 4727.565002, 0), App.Vector(10340.405518, 6077.565002, 0)),  # 5
    Part.LineSegment(App.Vector(10340.405518, 6077.565002, 0), App.Vector(11740.405518, 6077.565002, 0)),  # 6
    Part.LineSegment(App.Vector(11740.405518, 6077.565002, 0), App.Vector(11740.405518, 4727.565002, 0)),  # 7
    Part.LineSegment(App.Vector(12928.405518, 4556.065002, 0), App.Vector(11790.405518, 4556.065002, 0)),  # 8
    Part.LineSegment(App.Vector(11790.405518, 4556.065002, 0), App.Vector(11790.405518, 6249.065002, 0)),  # 9
    Part.LineSegment(App.Vector(11790.405518, 6249.065002, 0), App.Vector(12928.405518, 6249.065002, 0)),  # 10
    Part.LineSegment(App.Vector(12928.405518, 6249.065002, 0), App.Vector(12928.405518, 4556.065002, 0)),  # 11
], False)
sketch19.addConstraint([
    Sketcher.Constraint("Coincident", 0, 2, 1, 1),
    Sketcher.Constraint("Coincident", 1, 2, 2, 1),
    Sketcher.Constraint("Coincident", 2, 2, 3, 1),
    Sketcher.Constraint("Coincident", 3, 2, 0, 1),
    Sketcher.Constraint("Coincident", 4, 2, 5, 1),
    Sketcher.Constraint("Coincident", 5, 2, 6, 1),
    Sketcher.Constraint("Coincident", 6, 2, 7, 1),
    Sketcher.Constraint("Coincident", 7, 2, 4, 1),
    Sketcher.Constraint("Coincident", 8, 2, 9, 1),
    Sketcher.Constraint("Coincident", 9, 2, 10, 1),
    Sketcher.Constraint("Coincident", 10, 2, 11, 1),
    Sketcher.Constraint("Coincident", 11, 2, 8, 1),
    Sketcher.Constraint("Vertical", 0),
    Sketcher.Constraint("Horizontal", 1),
    Sketcher.Constraint("Vertical", 2),
    Sketcher.Constraint("Horizontal", 3),
    Sketcher.Constraint("Horizontal", 4),
    Sketcher.Constraint("Vertical", 5),
    Sketcher.Constraint("Horizontal", 6),
    Sketcher.Constraint("Vertical", 7),
    Sketcher.Constraint("Horizontal", 8),
    Sketcher.Constraint("Vertical", 9),
    Sketcher.Constraint("Horizontal", 10),
    Sketcher.Constraint("Vertical", 11),
    Sketcher.Constraint("DistanceX", 1, 1, 1, 2, 4000.0),
    Sketcher.Constraint("DistanceX", 4, 2, 4, 1, 1400.0),
    Sketcher.Constraint("DistanceX", 8, 2, 8, 1, 1138.0),
    Sketcher.Constraint("DistanceY", 0, 2, 0, 1, 2600.0),
    Sketcher.Constraint("DistanceY", 5, 1, 5, 2, 1350.0),
    Sketcher.Constraint("DistanceY", 9, 1, 9, 2, 1693.0),
    Sketcher.Constraint("DistanceY", 0, 2, 4, 2, 625.0),
    Sketcher.Constraint("DistanceX", 7, 2, 8, 2, 50.0),
    Sketcher.Constraint("DistanceY", 8, 2, 7, 2, 171.5),
    Sketcher.Constraint("DistanceX", -1, 1, 0, 2, 9613.61599),
    Sketcher.Constraint("DistanceY", -1, 1, 0, 2, 4102.565002),
    Sketcher.Constraint("DistanceX", -1, 1, 4, 2, 10340.405518),
])
pad19 = body17.newObject("PartDesign::Pad", "Pad018")
pad19.Profile = sketch19
pad19.Length = 25
body18 = doc.addObject("PartDesign::Body", "Body017")

# Sketch on XY plane
sketch20 = body18.newObject("Sketcher::SketchObject", "Sketch019")
sketch20.AttachmentSupport = (doc.getObject("XY_Plane017"), [""])
sketch20.MapMode = "FlatFace"
sketch20.addGeometry([
    Part.LineSegment(App.Vector(10879.176369, 1985.873921, 0), App.Vector(10879.176369, 617.873921, 0)),
    Part.LineSegment(App.Vector(10879.176369, 617.873921, 0), App.Vector(13399.176369, 617.873921, 0)),
    Part.LineSegment(App.Vector(13399.176369, 617.873921, 0), App.Vector(13399.176369, 1985.873921, 0)),
    Part.LineSegment(App.Vector(13399.176369, 1985.873921, 0), App.Vector(10879.176369, 1985.873921, 0)),
], False)
sketch20.addConstraint([
    Sketcher.Constraint("Coincident", 0, 2, 1, 1),
    Sketcher.Constraint("Coincident", 1, 2, 2, 1),
    Sketcher.Constraint("Coincident", 2, 2, 3, 1),
    Sketcher.Constraint("Coincident", 3, 2, 0, 1),
    Sketcher.Constraint("Vertical", 0),
    Sketcher.Constraint("Horizontal", 1),
    Sketcher.Constraint("Vertical", 2),
    Sketcher.Constraint("Horizontal", 3),
    Sketcher.Constraint("DistanceX", 1, 1, 1, 2, 2520.0),
    Sketcher.Constraint("DistanceY", 0, 2, 0, 1, 1368.0),
    Sketcher.Constraint("DistanceX", -1, 1, 0, 2, 10879.176369),
    Sketcher.Constraint("DistanceY", -1, 1, 0, 2, 617.873921),
])
pad20 = body18.newObject("PartDesign::Pad", "Pad019")
pad20.Profile = sketch20
pad20.Length = 2269

# Sketch on XZ plane
sketch21 = body18.newObject("Sketcher::SketchObject", "Sketch020")
sketch21.AttachmentSupport = (doc.getObject("XZ_Plane017"), [""])
sketch21.MapMode = "FlatFace"
sketch21.AttachmentOffset = App.Placement(App.Vector(0, 0, -617.873921), App.Rotation())
sketch21.addGeometry([
    Part.LineSegment(App.Vector(11029.176369, 879, 0), App.Vector(11029.176369, 0, 0)),
    Part.LineSegment(App.Vector(11029.176369, 0, 0), App.Vector(12199.176369, 0, 0)),
    Part.LineSegment(App.Vector(12199.176369, 0, 0), App.Vector(12199.176369, 879, 0)),
    Part.LineSegment(App.Vector(12199.176369, 879, 0), App.Vector(11029.176369, 879, 0)),
], False)
sketch21.addConstraint([
    Sketcher.Constraint("Coincident", 0, 2, 1, 1),
    Sketcher.Constraint("Coincident", 1, 2, 2, 1),
    Sketcher.Constraint("Coincident", 2, 2, 3, 1),
    Sketcher.Constraint("Coincident", 3, 2, 0, 1),
    Sketcher.Constraint("Vertical", 0),
    Sketcher.Constraint("Horizontal", 1),
    Sketcher.Constraint("Vertical", 2),
    Sketcher.Constraint("Horizontal", 3),
    Sketcher.Constraint("PointOnObject", 0, 2, -1),
    Sketcher.Constraint("DistanceX", 1, 1, 1, 2, 1170.0),
    Sketcher.Constraint("DistanceY", 0, 2, 0, 1, 879.0),
    Sketcher.Constraint("DistanceX", -1, 1, 0, 2, 11029.176369),
])
pocket1 = body18.newObject("PartDesign::Pocket", "Pocket")
pocket1.Profile = sketch21
pocket1.Type = "ThroughAll"

doc.recompute()
